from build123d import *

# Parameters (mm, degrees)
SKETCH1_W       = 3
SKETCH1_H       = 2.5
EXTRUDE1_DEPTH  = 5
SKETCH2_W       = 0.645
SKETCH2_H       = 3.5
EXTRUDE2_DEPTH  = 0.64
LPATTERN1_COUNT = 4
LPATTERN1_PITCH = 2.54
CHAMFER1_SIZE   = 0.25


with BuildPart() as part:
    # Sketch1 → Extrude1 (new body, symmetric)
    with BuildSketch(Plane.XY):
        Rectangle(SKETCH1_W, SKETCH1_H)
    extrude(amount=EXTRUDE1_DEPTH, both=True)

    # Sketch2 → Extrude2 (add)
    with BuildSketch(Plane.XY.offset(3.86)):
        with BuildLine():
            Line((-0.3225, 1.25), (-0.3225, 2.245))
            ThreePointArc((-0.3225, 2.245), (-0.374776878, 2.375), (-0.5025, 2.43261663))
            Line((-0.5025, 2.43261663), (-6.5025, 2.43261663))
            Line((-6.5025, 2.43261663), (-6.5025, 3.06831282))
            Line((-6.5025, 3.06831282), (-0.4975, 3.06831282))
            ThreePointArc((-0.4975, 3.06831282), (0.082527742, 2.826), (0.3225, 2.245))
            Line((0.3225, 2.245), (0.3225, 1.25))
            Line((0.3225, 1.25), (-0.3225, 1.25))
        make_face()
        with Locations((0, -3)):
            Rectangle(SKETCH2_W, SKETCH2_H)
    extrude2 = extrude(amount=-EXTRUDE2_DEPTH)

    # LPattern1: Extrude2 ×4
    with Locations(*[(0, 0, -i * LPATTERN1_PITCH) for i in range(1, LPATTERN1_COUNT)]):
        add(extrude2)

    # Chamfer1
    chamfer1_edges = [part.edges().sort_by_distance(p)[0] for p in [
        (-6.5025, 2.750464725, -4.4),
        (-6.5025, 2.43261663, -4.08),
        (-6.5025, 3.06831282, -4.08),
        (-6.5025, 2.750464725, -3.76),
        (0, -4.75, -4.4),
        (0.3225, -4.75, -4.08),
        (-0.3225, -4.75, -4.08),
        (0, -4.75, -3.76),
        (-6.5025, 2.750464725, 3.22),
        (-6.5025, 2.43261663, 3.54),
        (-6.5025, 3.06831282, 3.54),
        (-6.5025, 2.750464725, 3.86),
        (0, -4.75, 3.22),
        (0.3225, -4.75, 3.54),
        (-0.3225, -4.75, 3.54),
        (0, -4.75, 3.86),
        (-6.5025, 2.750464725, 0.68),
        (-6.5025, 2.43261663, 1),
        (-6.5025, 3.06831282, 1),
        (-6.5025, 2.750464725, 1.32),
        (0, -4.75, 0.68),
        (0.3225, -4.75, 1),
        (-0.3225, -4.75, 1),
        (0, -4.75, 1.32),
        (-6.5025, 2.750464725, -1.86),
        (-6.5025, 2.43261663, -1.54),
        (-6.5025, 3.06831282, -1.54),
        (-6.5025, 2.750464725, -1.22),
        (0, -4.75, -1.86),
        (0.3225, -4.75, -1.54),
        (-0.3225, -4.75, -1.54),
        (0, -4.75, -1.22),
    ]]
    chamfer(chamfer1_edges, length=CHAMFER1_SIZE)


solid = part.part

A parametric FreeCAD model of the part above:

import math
import FreeCAD as App
import Part
import Sketcher
from FreeCAD import Vector


def edges_at(feature, points):
    """Names of the edges that pass closest to the given points."""
    edges = feature.Shape.Edges
    near = lambda p: min(range(len(edges)), key=lambda i: edges[i].distToShape(Part.Vertex(*p))[0])
    return sorted({f"Edge{near(p) + 1}" for p in points})

doc = App.newDocument("Part")
body = doc.addObject("PartDesign::Body", "Body")

# Sketch on XY plane
sketch1 = doc.addObject("Sketcher::SketchObject", "Sketch")
body.addObject(sketch1)
sketch1.AttachmentSupport = (doc.XY_Plane, [""])
sketch1.MapMode = "FlatFace"
sketch1.addGeometry(Part.LineSegment(Vector(-1.5, 1.25, 0), Vector(-1.5, -1.25, 0)), False)
sketch1.addGeometry(Part.LineSegment(Vector(-1.5, -1.25, 0), Vector(1.5, -1.25, 0)), False)
sketch1.addGeometry(Part.LineSegment(Vector(1.5, -1.25, 0), Vector(1.5, 1.25, 0)), False)
sketch1.addGeometry(Part.LineSegment(Vector(1.5, 1.25, 0), Vector(-1.5, 1.25, 0)), False)
sketch1.addConstraint(Sketcher.Constraint("Coincident", 0, 2, 1, 1))
sketch1.addConstraint(Sketcher.Constraint("Coincident", 1, 2, 2, 1))
sketch1.addConstraint(Sketcher.Constraint("Coincident", 2, 2, 3, 1))
sketch1.addConstraint(Sketcher.Constraint("Coincident", 3, 2, 0, 1))
sketch1.addConstraint(Sketcher.Constraint("Vertical", 0))
sketch1.addConstraint(Sketcher.Constraint("Horizontal", 1))
sketch1.addConstraint(Sketcher.Constraint("Vertical", 2))
sketch1.addConstraint(Sketcher.Constraint("Horizontal", 3))
sketch1.addConstraint(Sketcher.Constraint("Symmetric", 0, 2, 2, 2, -1, 1))
sketch1.addConstraint(Sketcher.Constraint("DistanceX", 1, 1, 1, 2, 3.0))
sketch1.addConstraint(Sketcher.Constraint("DistanceY", 0, 2, 0, 1, 2.5))
pad1 = doc.addObject("PartDesign::Pad", "Pad")
body.addObject(pad1)
pad1.Profile = sketch1
pad1.Length = 10
pad1.Midplane = True

# Sketch on XY plane
sketch2 = doc.addObject("Sketcher::SketchObject", "Sketch001")
body.addObject(sketch2)
sketch2.AttachmentSupport = (doc.XY_Plane, [""])
sketch2.MapMode = "FlatFace"
sketch2.AttachmentOffset = App.Placement(Vector(0, 0, 3.86), App.Rotation())
sketch2.addGeometry(Part.LineSegment(Vector(-0.3225, 2.245, 0), Vector(-0.3225, 1.25, 0)), False)
sketch2.addGeometry(Part.LineSegment(Vector(-0.3225, 1.25, 0), Vector(0.3225, 1.25, 0)), False)
sketch2.addGeometry(Part.LineSegment(Vector(0.3225, 1.25, 0), Vector(0.3225, 2.245, 0)), False)
sketch2.addGeometry(Part.ArcOfCircle(Part.Circle(Vector(-0.50082, 2.245, 0), Vector(0, 0, 1), 0.82332), math.radians(0), math.radians(89.768991)), False)
sketch2.addGeometry(Part.LineSegment(Vector(-0.4975, 3.068313, 0), Vector(-6.5025, 3.068313, 0)), False)
sketch2.addGeometry(Part.LineSegment(Vector(-6.5025, 3.068313, 0), Vector(-6.5025, 2.432617, 0)), False)
sketch2.addGeometry(Part.LineSegment(Vector(-6.5025, 2.432617, 0), Vector(-0.5025, 2.432617, 0)), False)
sketch2.addGeometry(Part.ArcOfCircle(Part.Circle(Vector(-0.510278, 2.245, 0), Vector(0, 0, 1), 0.187778), math.radians(0), math.radians(87.626123)), False)
sketch2.addGeometry(Part.LineSegment(Vector(-0.3225, -1.25, 0), Vector(-0.3225, -4.75, 0)), False)
sketch2.addGeometry(Part.LineSegment(Vector(-0.3225, -4.75, 0), Vector(0.3225, -4.75, 0)), False)
sketch2.addGeometry(Part.LineSegment(Vector(0.3225, -4.75, 0), Vector(0.3225, -1.25, 0)), False)
sketch2.addGeometry(Part.LineSegment(Vector(0.3225, -1.25, 0), Vector(-0.3225, -1.25, 0)), False)
sketch2.addConstraint(Sketcher.Constraint("Coincident", 0, 2, 1, 1))
sketch2.addConstraint(Sketcher.Constraint("Coincident", 1, 2, 2, 1))
sketch2.addConstraint(Sketcher.Constraint("Tangent", 2, 2, 3, 1))
sketch2.addConstraint(Sketcher.Constraint("Coincident", 3, 2, 4, 1))
sketch2.addConstraint(Sketcher.Constraint("Coincident", 4, 2, 5, 1))
sketch2.addConstraint(Sketcher.Constraint("Coincident", 5, 2, 6, 1))
sketch2.addConstraint(Sketcher.Constraint("Coincident", 6, 2, 7, 2))
sketch2.addConstraint(Sketcher.Constraint("Tangent", 7, 1, 0, 1))
sketch2.addConstraint(Sketcher.Constraint("Coincident", 8, 2, 9, 1))
sketch2.addConstraint(Sketcher.Constraint("Coincident", 9, 2, 10, 1))
sketch2.addConstraint(Sketcher.Constraint("Coincident", 10, 2, 11, 1))
sketch2.addConstraint(Sketcher.Constraint("Coincident", 11, 2, 8, 1))
sketch2.addConstraint(Sketcher.Constraint("Vertical", 0))
sketch2.addConstraint(Sketcher.Constraint("Horizontal", 1))
sketch2.addConstraint(Sketcher.Constraint("Vertical", 2))
sketch2.addConstraint(Sketcher.Constraint("Horizontal", 4))
sketch2.addConstraint(Sketcher.Constraint("Vertical", 5))
sketch2.addConstraint(Sketcher.Constraint("Horizontal", 6))
sketch2.addConstraint(Sketcher.Constraint("Vertical", 8))
sketch2.addConstraint(Sketcher.Constraint("Horizontal", 9))
sketch2.addConstraint(Sketcher.Constraint("Vertical", 10))
sketch2.addConstraint(Sketcher.Constraint("Horizontal", 11))
sketch2.addConstraint(Sketcher.Constraint("Symmetric", 0, 2, 10, 2, -1, 1))
sketch2.addConstraint(Sketcher.Constraint("Symmetric", 2, 2, 7, 1, -2))
sketch2.addConstraint(Sketcher.Constraint("Vertical", 7, 1, 8, 2))
sketch2.addConstraint(Sketcher.Constraint("DistanceX", 6, 1, 6, 2, 6.0))
sketch2.addConstraint(Sketcher.Constraint("DistanceY", 8, 2, 8, 1, 3.5))
sketch2.addConstraint(Sketcher.Constraint("DistanceY", 8, 2, 0, 2, 6.0))
sketch2.addConstraint(Sketcher.Constraint("DistanceX", 1, 1, 1, 2, 0.645))
sketch2.addConstraint(Sketcher.Constraint("DistanceX", 4, 2, 4, 1, 6.005))
sketch2.addConstraint(Sketcher.Constraint("DistanceY", 0, 2, 0, 1, 0.995))
sketch2.addConstraint(Sketcher.Constraint("Radius", 3, 0.82332))
sketch2.addConstraint(Sketcher.Constraint("DistanceX", 3, 2, 2, 2, 0.82))
sketch2.addConstraint(Sketcher.Constraint("Radius", 7, 0.187778))
pad2 = doc.addObject("PartDesign::Pad", "Pad001")
body.addObject(pad2)
pad2.Profile = sketch2
pad2.Length = 0.64
pad2.Reversed = True
doc.recompute()

linearpattern = doc.addObject("PartDesign::LinearPattern", "LinearPattern")
body.addObject(linearpattern)
linearpattern.Originals = [pad2]
linearpattern.Direction = (doc.Z_Axis, [""])
linearpattern.Mode = "offset"
linearpattern.Offset = 2.54
linearpattern.Occurrences = 4
linearpattern.Reversed = True
body.Tip = linearpattern
doc.recompute()

chamfer = doc.addObject("PartDesign::Chamfer", "Chamfer")
body.addObject(chamfer)
chamfer.Base = (linearpattern, edges_at(linearpattern, [
    (-6.503, 2.75, -4.4),
    (-6.503, 2.433, -4.08),
    (-6.503, 3.068, -4.08),
    (-6.503, 2.75, -3.76),
    (0, -4.75, -4.4),
    (0.323, -4.75, -4.08),
    (-0.323, -4.75, -4.08),
    (0, -4.75, -3.76),
    (-6.503, 2.75, 3.22),
    (-6.503, 2.433, 3.54),
    (-6.503, 3.068, 3.54),
    (-6.503, 2.75, 3.86),
    (0, -4.75, 3.22),
    (0.323, -4.75, 3.54),
    (-0.323, -4.75, 3.54),
    (0, -4.75, 3.86),
    (-6.503, 2.75, 0.68),
    (-6.503, 2.433, 1),
    (-6.503, 3.068, 1),
    (-6.503, 2.75, 1.32),
    (0, -4.75, 0.68),
    (0.323, -4.75, 1),
    (-0.323, -4.75, 1),
    (0, -4.75, 1.32),
    (-6.503, 2.75, -1.86),
    (-6.503, 2.433, -1.54),
    (-6.503, 3.068, -1.54),
    (-6.503, 2.75, -1.22),
    (0, -4.75, -1.86),
    (0.323, -4.75, -1.54),
    (-0.323, -4.75, -1.54),
    (0, -4.75, -1.22),
]))
chamfer.Size = 0.25

doc.recompute()
